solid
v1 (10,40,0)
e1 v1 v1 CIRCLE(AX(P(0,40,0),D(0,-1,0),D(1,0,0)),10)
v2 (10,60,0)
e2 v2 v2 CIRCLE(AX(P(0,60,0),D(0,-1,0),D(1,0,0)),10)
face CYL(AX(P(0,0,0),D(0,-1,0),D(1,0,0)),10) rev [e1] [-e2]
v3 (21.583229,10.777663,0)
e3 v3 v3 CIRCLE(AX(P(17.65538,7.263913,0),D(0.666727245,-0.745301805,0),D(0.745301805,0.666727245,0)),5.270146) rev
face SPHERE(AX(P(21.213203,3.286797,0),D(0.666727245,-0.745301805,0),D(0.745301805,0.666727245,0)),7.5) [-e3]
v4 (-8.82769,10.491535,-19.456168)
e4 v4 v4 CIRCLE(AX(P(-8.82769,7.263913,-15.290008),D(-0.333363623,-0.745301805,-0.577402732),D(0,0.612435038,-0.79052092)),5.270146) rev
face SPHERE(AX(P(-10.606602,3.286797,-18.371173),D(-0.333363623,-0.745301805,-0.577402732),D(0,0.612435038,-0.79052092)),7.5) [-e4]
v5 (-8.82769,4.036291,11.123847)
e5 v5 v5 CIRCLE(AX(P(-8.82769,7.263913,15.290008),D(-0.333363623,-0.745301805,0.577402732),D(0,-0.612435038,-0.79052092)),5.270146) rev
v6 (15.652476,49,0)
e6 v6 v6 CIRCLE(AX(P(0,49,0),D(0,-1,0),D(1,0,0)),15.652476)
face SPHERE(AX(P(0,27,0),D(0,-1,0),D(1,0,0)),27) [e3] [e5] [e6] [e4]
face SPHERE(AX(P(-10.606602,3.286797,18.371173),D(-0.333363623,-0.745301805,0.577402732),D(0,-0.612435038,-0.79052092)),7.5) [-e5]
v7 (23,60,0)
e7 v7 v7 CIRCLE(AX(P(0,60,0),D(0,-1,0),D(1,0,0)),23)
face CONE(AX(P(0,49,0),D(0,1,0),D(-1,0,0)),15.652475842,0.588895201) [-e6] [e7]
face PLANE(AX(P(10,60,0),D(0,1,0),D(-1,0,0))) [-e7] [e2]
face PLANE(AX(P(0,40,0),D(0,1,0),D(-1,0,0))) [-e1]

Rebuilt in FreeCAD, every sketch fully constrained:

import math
import FreeCAD as App
import Part
import Sketcher

V = App.Vector
Q = App.Units.Quantity

doc = App.newDocument("Part")
body = doc.addObject("PartDesign::Body", "Body")

sketch1 = body.newObject("Sketcher::SketchObject", "Sketch")
sketch1.AttachmentSupport = (doc.getObject("XY_Plane"), [""])
sketch1.MapMode = "FlatFace"
sketch1.addGeometry([
    Part.LineSegment(V(0, 40, 0), V(0, 0, 0)),
    Part.ArcOfCircle(Part.Circle(V(0, 27, 0), V(0, 0, 1), 27), math.radians(-90), math.radians(55)),
    Part.LineSegment(V(16, 49, 0), V(23, 60, 0)),
    Part.LineSegment(V(23, 60, 0), V(10, 60, 0)),
    Part.LineSegment(V(10, 60, 0), V(10, 40, 0)),
    Part.LineSegment(V(10, 40, 0), V(0, 40, 0)),
], False)
sketch1.addConstraint([
    Sketcher.Constraint("Coincident", 0, 2, 1, 1),
    Sketcher.Constraint("Coincident", 1, 2, 2, 1),
    Sketcher.Constraint("Coincident", 2, 2, 3, 1),
    Sketcher.Constraint("Coincident", 3, 2, 4, 1),
    Sketcher.Constraint("Coincident", 4, 2, 5, 1),
    Sketcher.Constraint("Coincident", 5, 2, 0, 1),
    Sketcher.Constraint("Vertical", 0),
    Sketcher.Constraint("Horizontal", 3),
    Sketcher.Constraint("Vertical", 4),
    Sketcher.Constraint("Horizontal", 5),
    Sketcher.Constraint("Coincident", 0, 2, -1, 1),
    Sketcher.Constraint("PointOnObject", 1, 3, -2),
    Sketcher.Constraint("Radius", 1, Q("27 mm")),
    Sketcher.Constraint("DistanceX", 3, 2, 3, 1, Q("13 mm")),
    Sketcher.Constraint("DistanceX", 5, 2, 5, 1, Q("10 mm")),
    Sketcher.Constraint("DistanceY", 0, 2, 0, 1, Q("40 mm")),
    Sketcher.Constraint("DistanceY", 4, 2, 4, 1, Q("20 mm")),
    Sketcher.Constraint("DistanceY", -1, 1, 1, 2, Q("49 mm")),
])
revolution = body.newObject("PartDesign::Revolution", "Revolution")
revolution.Profile = sketch1
revolution.ReferenceAxis = (sketch1, ["V_Axis"])
revolution.Angle = 360

sketch2 = body.newObject("Sketcher::SketchObject", "Sketch001")
sketch2.AttachmentSupport = (doc.getObject("XY_Plane"), [""])
sketch2.MapMode = "FlatFace"
sketch2.addGeometry([
    Part.LineSegment(V(16, 9, 0), V(27, -2, 0)),
    Part.ArcOfCircle(Part.Circle(V(21, 3, 0), V(0, 0, 1), 7), math.radians(-45), math.radians(135)),
], False)
sketch2.addGeometry(Part.LineSegment(V(16, 9, 0), V(27, -2, 0)), True)
sketch2.addConstraint([
    Sketcher.Constraint("Coincident", 0, 1, 1, 2),
    Sketcher.Constraint("Coincident", 1, 1, 0, 2),
    Sketcher.Constraint("Coincident", 2, 1, 0, 1),
    Sketcher.Constraint("Coincident", 2, 2, 1, 1),
    Sketcher.Constraint("Radius", 1, Q("7.5 mm")),
    Sketcher.Constraint("Angle", 0, Q("-45 deg")),
    Sketcher.Constraint("DistanceX", 0, 1, 1, 3, Q("5.303301 mm")),
    Sketcher.Constraint("DistanceX", -1, 1, 1, 3, Q("21.213203 mm")),
    Sketcher.Constraint("DistanceY", -1, 1, 1, 3, Q("3.286797 mm")),
])
revolution2 = body.newObject("PartDesign::Revolution", "Revolution001")
revolution2.Profile = sketch2
revolution2.ReferenceAxis = (sketch2, ["Axis0"])
revolution2.Angle = 360
doc.recompute()

polarpattern = body.newObject("PartDesign::PolarPattern", "PolarPattern")
polarpattern.Originals = [revolution2]
polarpattern.Axis = (doc.getObject("Y_Axis"), [""])
polarpattern.Angle = 360
polarpattern.Occurrences = 3
body.Tip = polarpattern

doc.recompute()
